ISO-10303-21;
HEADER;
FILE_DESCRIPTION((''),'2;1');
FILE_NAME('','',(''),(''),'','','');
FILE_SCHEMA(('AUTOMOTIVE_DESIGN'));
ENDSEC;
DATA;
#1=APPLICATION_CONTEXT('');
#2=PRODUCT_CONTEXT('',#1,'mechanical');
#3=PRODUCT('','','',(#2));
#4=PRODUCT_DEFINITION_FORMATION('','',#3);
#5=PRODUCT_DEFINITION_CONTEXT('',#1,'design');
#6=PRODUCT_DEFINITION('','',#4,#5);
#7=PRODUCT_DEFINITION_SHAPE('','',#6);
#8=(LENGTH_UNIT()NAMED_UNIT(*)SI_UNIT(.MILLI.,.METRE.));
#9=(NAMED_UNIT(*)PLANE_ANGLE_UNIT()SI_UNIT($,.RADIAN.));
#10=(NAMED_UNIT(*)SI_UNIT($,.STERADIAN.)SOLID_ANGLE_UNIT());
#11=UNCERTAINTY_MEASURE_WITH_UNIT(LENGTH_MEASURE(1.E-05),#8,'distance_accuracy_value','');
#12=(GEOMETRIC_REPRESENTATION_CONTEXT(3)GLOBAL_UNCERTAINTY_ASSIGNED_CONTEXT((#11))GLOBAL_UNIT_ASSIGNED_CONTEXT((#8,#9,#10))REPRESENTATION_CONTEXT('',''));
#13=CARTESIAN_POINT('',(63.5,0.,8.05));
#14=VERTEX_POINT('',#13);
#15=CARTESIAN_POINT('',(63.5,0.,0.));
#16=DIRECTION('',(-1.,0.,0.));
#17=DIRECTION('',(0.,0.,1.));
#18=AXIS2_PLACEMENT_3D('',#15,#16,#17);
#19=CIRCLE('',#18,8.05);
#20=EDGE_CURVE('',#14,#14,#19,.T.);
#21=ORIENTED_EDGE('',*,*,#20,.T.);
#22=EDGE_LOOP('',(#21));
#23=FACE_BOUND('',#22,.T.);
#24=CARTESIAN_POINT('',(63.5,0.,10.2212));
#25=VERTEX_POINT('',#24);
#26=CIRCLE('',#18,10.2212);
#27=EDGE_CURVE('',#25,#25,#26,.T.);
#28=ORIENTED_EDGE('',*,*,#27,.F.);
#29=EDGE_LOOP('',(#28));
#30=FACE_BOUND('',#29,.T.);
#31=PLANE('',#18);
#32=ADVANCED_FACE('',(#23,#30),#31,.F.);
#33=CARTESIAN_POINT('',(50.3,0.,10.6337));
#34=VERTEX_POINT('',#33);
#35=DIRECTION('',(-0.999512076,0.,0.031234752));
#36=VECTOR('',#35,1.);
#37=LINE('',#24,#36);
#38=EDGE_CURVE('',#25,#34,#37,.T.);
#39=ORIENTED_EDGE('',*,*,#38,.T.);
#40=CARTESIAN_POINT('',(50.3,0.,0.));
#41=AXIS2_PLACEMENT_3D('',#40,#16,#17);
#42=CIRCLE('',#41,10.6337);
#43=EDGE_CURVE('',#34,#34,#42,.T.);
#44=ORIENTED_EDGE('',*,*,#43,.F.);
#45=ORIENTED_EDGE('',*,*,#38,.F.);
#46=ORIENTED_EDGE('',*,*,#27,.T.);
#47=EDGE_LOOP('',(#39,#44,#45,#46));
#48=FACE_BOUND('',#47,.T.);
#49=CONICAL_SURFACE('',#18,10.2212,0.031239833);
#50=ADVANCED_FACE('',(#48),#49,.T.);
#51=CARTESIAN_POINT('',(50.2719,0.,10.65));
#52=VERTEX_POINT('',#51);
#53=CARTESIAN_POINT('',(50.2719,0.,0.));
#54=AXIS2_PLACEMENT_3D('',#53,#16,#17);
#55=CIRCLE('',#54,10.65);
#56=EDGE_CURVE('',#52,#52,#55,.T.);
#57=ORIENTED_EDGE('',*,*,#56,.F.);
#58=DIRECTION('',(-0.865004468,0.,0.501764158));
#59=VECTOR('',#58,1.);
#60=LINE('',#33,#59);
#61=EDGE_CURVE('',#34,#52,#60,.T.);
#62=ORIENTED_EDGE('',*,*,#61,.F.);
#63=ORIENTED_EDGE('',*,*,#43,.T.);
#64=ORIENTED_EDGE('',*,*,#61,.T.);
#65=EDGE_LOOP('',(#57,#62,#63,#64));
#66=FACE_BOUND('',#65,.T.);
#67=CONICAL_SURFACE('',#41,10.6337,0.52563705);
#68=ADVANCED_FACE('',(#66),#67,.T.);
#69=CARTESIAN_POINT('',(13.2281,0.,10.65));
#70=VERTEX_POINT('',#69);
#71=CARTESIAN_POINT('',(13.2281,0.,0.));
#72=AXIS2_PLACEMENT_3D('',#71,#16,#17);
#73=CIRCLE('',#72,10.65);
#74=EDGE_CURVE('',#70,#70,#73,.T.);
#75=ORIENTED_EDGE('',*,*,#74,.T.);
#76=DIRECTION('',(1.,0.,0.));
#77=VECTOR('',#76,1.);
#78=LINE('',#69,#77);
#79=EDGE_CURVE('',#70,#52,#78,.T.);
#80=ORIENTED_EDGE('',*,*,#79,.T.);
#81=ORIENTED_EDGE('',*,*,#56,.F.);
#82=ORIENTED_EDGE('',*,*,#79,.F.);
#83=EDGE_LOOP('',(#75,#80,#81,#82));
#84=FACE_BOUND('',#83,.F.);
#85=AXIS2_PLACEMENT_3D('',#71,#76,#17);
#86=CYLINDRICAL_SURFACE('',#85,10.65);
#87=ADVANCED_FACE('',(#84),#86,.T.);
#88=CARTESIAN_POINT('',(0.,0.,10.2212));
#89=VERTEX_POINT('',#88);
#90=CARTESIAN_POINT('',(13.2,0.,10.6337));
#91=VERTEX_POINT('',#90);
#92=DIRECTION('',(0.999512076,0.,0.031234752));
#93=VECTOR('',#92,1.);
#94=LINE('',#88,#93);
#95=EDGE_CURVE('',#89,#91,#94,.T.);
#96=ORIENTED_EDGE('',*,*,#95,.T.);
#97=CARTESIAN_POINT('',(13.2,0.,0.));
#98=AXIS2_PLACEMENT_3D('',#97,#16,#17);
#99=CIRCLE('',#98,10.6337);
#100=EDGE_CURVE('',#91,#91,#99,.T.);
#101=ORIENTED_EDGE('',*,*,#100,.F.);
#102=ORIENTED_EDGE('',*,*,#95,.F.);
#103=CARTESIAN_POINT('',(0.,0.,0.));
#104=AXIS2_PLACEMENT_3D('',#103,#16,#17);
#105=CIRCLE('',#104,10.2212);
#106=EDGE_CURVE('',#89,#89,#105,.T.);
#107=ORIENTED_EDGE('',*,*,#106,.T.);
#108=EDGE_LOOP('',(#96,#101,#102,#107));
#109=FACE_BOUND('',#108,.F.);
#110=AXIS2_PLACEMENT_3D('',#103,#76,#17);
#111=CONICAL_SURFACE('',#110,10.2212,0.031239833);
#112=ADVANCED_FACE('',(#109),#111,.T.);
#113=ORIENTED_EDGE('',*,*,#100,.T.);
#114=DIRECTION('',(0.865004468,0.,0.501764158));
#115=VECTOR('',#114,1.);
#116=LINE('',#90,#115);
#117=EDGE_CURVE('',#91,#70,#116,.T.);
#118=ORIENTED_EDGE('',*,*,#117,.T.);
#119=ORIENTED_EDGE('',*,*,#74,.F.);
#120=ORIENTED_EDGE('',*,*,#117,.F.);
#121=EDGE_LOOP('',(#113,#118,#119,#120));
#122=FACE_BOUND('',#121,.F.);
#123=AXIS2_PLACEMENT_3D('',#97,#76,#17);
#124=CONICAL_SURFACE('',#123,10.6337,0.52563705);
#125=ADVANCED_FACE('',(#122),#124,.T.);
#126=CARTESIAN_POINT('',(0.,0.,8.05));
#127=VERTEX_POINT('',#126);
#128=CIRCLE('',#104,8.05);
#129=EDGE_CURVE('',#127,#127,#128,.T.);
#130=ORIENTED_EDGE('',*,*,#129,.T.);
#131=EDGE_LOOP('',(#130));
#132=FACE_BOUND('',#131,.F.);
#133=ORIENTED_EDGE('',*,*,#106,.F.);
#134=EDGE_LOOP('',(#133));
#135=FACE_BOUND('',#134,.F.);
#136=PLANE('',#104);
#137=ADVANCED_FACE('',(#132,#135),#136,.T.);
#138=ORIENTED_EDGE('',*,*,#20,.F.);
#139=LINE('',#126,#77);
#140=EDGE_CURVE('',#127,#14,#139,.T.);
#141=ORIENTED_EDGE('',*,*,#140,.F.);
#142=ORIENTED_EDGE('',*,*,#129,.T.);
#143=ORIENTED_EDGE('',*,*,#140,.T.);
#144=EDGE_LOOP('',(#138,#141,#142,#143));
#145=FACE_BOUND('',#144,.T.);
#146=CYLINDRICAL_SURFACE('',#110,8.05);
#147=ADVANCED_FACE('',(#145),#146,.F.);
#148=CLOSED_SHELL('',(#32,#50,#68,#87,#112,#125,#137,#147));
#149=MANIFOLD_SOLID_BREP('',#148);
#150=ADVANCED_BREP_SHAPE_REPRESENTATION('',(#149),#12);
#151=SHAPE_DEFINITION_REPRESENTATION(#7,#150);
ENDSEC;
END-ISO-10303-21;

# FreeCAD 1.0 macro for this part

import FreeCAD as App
import Part
import Sketcher

V = App.Vector
Q = App.Units.Quantity

doc = App.newDocument("Part")
params = doc.addObject("Spreadsheet::Sheet", "Params")
for row, (alias, value) in enumerate([
    ("sketch1_width", "2.5 in"),
    ("revolution_angle", "360 deg"),
], start=1):
    params.set(f"A{row}", alias)
    params.set(f"B{row}", "=" + value)
    params.setAlias(f"B{row}", alias)

body = doc.addObject("PartDesign::Body", "Body")

# Sketch on XZ plane
sketch1 = doc.addObject("Sketcher::SketchObject", "Sketch")
body.addObject(sketch1)
sketch1.AttachmentSupport = (doc.XZ_Plane, [""])
sketch1.MapMode = "FlatFace"
sketch1.addGeometry([
    Part.LineSegment(V(63.5, 8.05, 0), V(0, 8.05, 0)),  # 0
    Part.LineSegment(V(0, 8.05, 0), V(0, 10.221, 0)),  # 1
    Part.LineSegment(V(0, 10.221, 0), V(13.2, 10.634, 0)),  # 2
    Part.LineSegment(V(13.2, 10.634, 0), V(13.228, 10.65, 0)),  # 3
    Part.LineSegment(V(13.228, 10.65, 0), V(50.272, 10.65, 0)),  # 4
    Part.LineSegment(V(50.272, 10.65, 0), V(50.3, 10.634, 0)),  # 5
    Part.LineSegment(V(50.3, 10.634, 0), V(63.5, 10.221, 0)),  # 6
    Part.LineSegment(V(63.5, 10.221, 0), V(63.5, 8.05, 0)),  # 7
], False)
sketch1.addConstraint([
    Sketcher.Constraint("Coincident", 0, 2, 1, 1),
    Sketcher.Constraint("Coincident", 1, 2, 2, 1),
    Sketcher.Constraint("Coincident", 2, 2, 3, 1),
    Sketcher.Constraint("Coincident", 3, 2, 4, 1),
    Sketcher.Constraint("Coincident", 4, 2, 5, 1),
    Sketcher.Constraint("Coincident", 5, 2, 6, 1),
    Sketcher.Constraint("Coincident", 6, 2, 7, 1),
    Sketcher.Constraint("Coincident", 7, 2, 0, 1),
    Sketcher.Constraint("Horizontal", 0),
    Sketcher.Constraint("Vertical", 1),
    Sketcher.Constraint("Horizontal", 4),
    Sketcher.Constraint("Vertical", 7),
    Sketcher.Constraint("PointOnObject", 0, 2, -2),
    Sketcher.Constraint("Horizontal", 2, 2, 5, 2),
    Sketcher.Constraint("Horizontal", 1, 2, 6, 2),
    Sketcher.Constraint("Equal", 3, 5),
    Sketcher.Constraint("Equal", 2, 6),
    Sketcher.Constraint("DistanceX", 0, 2, 0, 1, Q("2.5 in")),
    Sketcher.Constraint("Angle", 2, Q("1.79 deg")),
    Sketcher.Constraint("DistanceX", -1, 1, 2, 2, Q("13.2 mm")),
    Sketcher.Constraint("DistanceY", 0, 2, 3, 2, Q("2.6 mm")),
    Sketcher.Constraint("DistanceX", 4, 1, 4, 2, Q("37.0438 mm")),
    Sketcher.Constraint("DistanceY", 1, 1, 1, 2, Q("2.1712 mm")),
    Sketcher.Constraint("DistanceY", -1, 1, 1, 2, Q("0.4024 in")),
])
sketch1.setExpression("Constraints[17]", "Params.sketch1_width")
revolution = doc.addObject("PartDesign::Revolution", "Revolution")
body.addObject(revolution)
revolution.Profile = sketch1
revolution.ReferenceAxis = (sketch1, ["H_Axis"])
revolution.setExpression("Angle", "Params.revolution_angle")

doc.recompute()
